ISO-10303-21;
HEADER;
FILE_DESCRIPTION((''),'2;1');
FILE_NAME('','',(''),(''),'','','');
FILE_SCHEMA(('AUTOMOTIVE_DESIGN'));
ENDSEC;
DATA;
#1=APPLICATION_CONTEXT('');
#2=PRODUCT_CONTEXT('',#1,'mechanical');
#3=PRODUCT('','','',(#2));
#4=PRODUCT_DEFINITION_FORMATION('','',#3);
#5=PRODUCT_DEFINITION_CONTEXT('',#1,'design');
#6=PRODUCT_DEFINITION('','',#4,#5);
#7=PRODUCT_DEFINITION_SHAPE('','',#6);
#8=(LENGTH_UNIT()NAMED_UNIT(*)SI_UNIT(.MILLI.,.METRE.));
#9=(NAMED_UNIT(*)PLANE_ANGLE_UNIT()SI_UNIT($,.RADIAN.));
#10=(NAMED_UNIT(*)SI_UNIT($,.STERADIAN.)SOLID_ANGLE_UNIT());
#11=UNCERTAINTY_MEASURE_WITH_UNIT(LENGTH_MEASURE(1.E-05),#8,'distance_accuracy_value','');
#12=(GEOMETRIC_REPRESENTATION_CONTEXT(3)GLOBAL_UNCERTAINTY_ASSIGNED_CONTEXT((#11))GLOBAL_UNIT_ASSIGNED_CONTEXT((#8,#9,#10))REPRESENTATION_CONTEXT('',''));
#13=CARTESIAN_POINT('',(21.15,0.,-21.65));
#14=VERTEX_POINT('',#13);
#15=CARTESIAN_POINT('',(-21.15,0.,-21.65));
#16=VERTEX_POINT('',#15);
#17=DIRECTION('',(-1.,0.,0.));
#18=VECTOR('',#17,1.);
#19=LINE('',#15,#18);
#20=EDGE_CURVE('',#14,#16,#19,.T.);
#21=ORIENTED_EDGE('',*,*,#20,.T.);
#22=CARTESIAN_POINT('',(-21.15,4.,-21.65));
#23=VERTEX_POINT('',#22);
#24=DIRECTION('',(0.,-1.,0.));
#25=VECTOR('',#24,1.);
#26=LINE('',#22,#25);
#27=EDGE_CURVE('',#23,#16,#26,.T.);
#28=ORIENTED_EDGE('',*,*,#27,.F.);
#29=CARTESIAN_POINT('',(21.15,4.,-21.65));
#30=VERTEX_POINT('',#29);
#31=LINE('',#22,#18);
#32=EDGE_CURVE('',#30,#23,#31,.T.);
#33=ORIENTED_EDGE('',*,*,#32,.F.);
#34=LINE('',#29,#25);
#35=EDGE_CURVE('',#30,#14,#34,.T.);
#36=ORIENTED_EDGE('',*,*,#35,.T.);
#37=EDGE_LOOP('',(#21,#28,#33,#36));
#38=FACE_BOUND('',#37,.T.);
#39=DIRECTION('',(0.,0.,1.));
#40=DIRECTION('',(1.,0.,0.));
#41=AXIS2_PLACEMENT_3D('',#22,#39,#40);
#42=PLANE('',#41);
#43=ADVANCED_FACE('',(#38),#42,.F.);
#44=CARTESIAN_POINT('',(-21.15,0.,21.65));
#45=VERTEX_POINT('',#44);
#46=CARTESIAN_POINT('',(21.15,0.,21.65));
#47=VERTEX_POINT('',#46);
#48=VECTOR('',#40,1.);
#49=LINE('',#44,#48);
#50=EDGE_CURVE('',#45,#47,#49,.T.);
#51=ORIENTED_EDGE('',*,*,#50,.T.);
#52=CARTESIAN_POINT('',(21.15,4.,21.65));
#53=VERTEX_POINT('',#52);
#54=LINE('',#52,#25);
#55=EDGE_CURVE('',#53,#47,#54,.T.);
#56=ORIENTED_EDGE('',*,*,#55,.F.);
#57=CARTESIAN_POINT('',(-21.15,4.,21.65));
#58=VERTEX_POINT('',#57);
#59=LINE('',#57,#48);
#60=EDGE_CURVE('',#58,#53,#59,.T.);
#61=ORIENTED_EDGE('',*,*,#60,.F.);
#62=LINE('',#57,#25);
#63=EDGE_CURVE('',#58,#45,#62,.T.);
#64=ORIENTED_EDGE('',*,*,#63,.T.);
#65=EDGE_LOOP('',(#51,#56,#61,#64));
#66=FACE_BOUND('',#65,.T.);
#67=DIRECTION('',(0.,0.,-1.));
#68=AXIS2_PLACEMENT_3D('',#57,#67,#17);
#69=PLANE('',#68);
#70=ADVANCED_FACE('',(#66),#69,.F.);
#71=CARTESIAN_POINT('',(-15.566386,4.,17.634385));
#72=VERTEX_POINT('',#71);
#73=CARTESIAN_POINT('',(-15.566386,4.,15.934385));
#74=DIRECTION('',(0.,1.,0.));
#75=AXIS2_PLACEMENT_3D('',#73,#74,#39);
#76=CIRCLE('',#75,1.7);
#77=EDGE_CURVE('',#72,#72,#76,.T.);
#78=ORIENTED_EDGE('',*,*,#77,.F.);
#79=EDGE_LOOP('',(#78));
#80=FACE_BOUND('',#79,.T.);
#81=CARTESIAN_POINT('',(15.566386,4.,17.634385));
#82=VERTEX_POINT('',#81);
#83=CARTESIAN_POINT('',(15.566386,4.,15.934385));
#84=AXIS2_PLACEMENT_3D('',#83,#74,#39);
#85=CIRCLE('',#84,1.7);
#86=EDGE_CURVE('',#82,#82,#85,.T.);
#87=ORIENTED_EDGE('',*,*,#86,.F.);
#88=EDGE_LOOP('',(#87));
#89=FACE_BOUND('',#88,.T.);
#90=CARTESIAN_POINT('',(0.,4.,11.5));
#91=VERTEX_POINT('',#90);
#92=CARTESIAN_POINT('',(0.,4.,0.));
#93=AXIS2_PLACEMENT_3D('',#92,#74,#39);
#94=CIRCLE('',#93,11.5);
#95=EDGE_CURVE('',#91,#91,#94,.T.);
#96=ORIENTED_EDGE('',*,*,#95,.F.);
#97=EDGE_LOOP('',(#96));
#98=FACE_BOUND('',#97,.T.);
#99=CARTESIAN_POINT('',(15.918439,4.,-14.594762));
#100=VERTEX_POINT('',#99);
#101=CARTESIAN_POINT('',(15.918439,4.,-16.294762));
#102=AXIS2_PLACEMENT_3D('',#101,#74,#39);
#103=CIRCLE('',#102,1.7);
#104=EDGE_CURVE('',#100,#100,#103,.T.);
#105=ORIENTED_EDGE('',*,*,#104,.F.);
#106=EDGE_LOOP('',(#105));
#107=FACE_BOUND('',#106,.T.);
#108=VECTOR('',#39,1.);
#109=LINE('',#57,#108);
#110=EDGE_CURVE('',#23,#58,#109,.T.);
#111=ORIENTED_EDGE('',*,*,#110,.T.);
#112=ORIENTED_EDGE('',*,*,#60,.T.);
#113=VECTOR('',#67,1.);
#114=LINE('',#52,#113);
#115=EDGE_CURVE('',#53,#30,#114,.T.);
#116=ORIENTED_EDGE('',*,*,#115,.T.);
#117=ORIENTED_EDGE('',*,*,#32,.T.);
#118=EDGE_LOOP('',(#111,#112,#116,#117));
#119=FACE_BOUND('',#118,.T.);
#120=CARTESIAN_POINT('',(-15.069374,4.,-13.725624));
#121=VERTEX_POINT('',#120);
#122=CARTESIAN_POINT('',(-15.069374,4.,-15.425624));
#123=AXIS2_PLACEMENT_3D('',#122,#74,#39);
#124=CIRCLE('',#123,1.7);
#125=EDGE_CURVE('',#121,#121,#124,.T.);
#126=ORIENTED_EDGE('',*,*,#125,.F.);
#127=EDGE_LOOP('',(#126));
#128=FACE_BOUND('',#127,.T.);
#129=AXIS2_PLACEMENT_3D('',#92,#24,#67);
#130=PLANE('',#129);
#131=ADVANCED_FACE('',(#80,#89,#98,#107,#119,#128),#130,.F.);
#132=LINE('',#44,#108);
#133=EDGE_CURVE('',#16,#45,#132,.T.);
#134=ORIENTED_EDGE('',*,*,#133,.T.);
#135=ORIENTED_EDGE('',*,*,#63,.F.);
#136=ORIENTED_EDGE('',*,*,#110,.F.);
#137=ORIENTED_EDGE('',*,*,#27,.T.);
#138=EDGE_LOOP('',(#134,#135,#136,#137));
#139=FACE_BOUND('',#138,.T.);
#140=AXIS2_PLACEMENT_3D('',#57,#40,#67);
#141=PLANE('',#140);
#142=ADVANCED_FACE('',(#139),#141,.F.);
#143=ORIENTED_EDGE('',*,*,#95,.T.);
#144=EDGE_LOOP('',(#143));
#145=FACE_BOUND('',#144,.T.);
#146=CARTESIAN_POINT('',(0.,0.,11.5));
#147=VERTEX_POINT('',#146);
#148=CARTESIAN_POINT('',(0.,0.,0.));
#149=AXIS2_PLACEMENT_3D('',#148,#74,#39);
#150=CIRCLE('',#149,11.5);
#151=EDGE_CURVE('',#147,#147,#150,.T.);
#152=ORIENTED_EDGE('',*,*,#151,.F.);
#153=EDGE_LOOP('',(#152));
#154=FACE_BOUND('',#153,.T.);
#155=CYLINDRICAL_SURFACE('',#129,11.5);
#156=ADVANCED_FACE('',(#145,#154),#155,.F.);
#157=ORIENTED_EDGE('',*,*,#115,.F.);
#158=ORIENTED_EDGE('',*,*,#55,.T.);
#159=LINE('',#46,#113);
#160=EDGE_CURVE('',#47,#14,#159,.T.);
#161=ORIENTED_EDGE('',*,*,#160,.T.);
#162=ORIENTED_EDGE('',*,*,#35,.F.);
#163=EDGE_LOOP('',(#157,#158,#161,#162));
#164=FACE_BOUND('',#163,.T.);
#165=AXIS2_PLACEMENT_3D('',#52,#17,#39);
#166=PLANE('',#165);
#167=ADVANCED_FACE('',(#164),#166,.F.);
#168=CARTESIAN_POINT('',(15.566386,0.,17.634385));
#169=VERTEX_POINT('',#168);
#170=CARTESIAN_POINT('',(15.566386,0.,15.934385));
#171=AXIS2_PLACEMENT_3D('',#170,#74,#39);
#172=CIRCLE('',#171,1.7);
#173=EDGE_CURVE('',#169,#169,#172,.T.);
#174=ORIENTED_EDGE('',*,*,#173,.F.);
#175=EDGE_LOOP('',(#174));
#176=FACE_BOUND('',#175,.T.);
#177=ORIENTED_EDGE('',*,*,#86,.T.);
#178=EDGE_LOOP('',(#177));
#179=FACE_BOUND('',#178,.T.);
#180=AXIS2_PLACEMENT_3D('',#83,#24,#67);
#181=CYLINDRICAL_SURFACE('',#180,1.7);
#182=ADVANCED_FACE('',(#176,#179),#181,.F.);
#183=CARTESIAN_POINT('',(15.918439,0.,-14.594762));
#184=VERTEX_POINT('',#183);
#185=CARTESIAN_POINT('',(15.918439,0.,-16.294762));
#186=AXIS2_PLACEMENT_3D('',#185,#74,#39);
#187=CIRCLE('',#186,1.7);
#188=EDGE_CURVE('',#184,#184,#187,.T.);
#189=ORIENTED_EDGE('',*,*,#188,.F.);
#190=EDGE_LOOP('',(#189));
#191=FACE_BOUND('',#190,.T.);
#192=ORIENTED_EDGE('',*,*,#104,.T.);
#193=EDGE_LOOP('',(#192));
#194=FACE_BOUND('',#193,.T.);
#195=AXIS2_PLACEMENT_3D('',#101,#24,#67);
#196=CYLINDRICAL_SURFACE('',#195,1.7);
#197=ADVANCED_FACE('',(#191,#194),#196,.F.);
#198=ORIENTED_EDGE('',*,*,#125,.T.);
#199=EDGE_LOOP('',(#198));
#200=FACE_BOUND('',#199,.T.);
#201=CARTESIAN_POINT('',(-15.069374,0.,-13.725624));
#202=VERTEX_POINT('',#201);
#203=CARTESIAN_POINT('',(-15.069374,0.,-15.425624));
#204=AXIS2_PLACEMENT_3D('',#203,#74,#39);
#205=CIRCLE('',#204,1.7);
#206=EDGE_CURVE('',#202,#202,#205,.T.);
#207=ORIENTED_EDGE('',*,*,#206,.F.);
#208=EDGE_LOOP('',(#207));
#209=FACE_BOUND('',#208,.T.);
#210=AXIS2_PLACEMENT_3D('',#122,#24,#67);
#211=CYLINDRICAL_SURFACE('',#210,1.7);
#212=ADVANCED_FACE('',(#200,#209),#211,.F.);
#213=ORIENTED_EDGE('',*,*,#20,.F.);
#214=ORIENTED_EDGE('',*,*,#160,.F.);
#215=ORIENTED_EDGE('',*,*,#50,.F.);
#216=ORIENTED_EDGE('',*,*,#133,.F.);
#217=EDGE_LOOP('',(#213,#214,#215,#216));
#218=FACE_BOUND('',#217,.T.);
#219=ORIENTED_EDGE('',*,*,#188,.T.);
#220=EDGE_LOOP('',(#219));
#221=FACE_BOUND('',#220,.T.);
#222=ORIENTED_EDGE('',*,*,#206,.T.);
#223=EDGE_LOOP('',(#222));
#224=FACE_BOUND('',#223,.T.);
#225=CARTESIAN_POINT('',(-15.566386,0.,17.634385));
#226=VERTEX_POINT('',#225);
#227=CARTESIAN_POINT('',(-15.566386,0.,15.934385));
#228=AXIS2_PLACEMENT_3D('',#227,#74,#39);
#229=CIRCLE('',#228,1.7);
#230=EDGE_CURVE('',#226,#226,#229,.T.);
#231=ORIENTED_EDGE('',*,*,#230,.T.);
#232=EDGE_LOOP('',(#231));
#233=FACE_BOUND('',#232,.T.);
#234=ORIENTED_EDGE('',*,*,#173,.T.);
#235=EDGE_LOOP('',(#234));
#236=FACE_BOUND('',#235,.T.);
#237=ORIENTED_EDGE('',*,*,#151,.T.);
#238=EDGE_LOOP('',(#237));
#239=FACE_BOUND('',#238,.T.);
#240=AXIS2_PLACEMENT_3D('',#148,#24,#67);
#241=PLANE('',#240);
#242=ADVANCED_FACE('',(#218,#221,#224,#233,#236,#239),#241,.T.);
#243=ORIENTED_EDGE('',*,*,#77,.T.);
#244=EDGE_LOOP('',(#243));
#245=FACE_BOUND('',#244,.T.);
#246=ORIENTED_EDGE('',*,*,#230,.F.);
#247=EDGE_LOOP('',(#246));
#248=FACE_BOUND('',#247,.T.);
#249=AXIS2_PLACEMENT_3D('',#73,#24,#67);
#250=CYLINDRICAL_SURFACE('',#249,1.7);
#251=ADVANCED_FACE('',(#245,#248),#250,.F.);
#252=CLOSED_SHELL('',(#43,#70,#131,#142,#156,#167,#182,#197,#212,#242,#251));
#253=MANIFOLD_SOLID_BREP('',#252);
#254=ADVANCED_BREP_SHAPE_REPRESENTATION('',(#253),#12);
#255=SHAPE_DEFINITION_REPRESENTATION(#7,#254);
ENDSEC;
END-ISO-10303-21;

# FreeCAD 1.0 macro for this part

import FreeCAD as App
import Part
import Sketcher
from FreeCAD import Vector
Q = App.Units.Quantity


def add_polygon(sketch, points):
    """Adds a closed chain of lines whose ends are joined by coincident constraints."""
    first, n = sketch.GeometryCount, len(points)
    for a, b in zip(points, points[1:] + points[:1]):
        sketch.addGeometry(Part.LineSegment(App.Vector(*a, 0), App.Vector(*b, 0)), False)
    for i in range(n):
        sketch.addConstraint(Sketcher.Constraint("Coincident", first + i, 2, first + (i + 1) % n, 1))

doc = App.newDocument("Part")
body = doc.addObject("PartDesign::Body", "Body")

# Sketch on XZ plane
sketch1 = body.newObject("Sketcher::SketchObject", "Sketch")
sketch1.AttachmentSupport = (doc.getObject("XZ_Plane"), [""])
sketch1.MapMode = "FlatFace"
add_polygon(sketch1, [(-21.1, -21.6), (-21.1, 21.6), (21.1, 21.6), (21.1, -21.6)])  # lines 0-3
sketch1.addGeometry(Part.Circle(Vector(-15.6, 15.9, 0), Vector(0, 0, 1), 1.7), False)  # 4
sketch1.addGeometry(Part.Circle(Vector(0, 0, 0), Vector(0, 0, 1), 11.5), False)  # 5
sketch1.addGeometry(Part.Circle(Vector(15.6, 15.9, 0), Vector(0, 0, 1), 1.7), False)  # 6
sketch1.addGeometry(Part.Circle(Vector(-15.1, -15.4, 0), Vector(0, 0, 1), 1.7), False)  # 7
sketch1.addGeometry(Part.Circle(Vector(15.9, -16.3, 0), Vector(0, 0, 1), 1.7), False)  # 8
sketch1.addConstraint([
    Sketcher.Constraint("Vertical", 0),
    Sketcher.Constraint("Horizontal", 1),
    Sketcher.Constraint("Vertical", 2),
    Sketcher.Constraint("Horizontal", 3),
    Sketcher.Constraint("Coincident", 5, 3, -1, 1),
    Sketcher.Constraint("Equal", 4, 6),
    Sketcher.Constraint("Equal", 6, 7),
    Sketcher.Constraint("Equal", 7, 8),
    Sketcher.Constraint("Symmetric", 0, 2, 2, 2, -1, 1),
    Sketcher.Constraint("Symmetric", 4, 3, 6, 3, -2),
    Sketcher.Constraint("Diameter", 5, Q("23 mm")),
    Sketcher.Constraint("Diameter", 4, Q("3.4 mm")),
    Sketcher.Constraint("DistanceX", 1, 1, 1, 2, Q("42.3 mm")),
    Sketcher.Constraint("DistanceY", 0, 1, 0, 2, Q("43.3 mm")),
    Sketcher.Constraint("DistanceX", -1, 1, 8, 3, Q("15.918439 mm")),
    Sketcher.Constraint("DistanceY", 8, 3, -1, 1, Q("16.294762 mm")),
    Sketcher.Constraint("DistanceX", 4, 3, 6, 3, Q("31.132771 mm")),
    Sketcher.Constraint("DistanceX", 4, 3, 7, 3, Q("0.497011 mm")),
    Sketcher.Constraint("DistanceY", 7, 3, 4, 3, Q("31.36001 mm")),
    Sketcher.Constraint("DistanceY", -1, 1, 4, 3, Q("15.934385 mm")),
])
pad1 = body.newObject("PartDesign::Pad", "Pad")
pad1.Profile = sketch1
pad1.Length = 4
pad1.Reversed = True

doc.recompute()
